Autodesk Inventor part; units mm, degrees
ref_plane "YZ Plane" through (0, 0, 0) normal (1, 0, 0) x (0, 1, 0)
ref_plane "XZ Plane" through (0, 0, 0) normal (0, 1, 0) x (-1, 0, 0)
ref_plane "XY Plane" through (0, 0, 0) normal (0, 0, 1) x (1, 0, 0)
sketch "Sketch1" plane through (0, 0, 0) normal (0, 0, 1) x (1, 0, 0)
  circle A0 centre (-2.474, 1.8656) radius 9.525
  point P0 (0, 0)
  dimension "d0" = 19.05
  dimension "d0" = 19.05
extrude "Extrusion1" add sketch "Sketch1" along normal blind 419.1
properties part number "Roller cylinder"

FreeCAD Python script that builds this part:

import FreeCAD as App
import Part
import Sketcher
from FreeCAD import Vector
Q = App.Units.Quantity

doc = App.newDocument("Part")
body = doc.addObject("PartDesign::Body", "Body")

sketch1 = doc.addObject("Sketcher::SketchObject", "Sketch")
body.addObject(sketch1)
sketch1.AttachmentSupport = (doc.XY_Plane, [""])
sketch1.MapMode = "FlatFace"
sketch1.addGeometry(Part.Circle(Vector(-2, 2, 0), Vector(0, 0, 1), 10), False)
sketch1.addConstraint([
    Sketcher.Constraint("Diameter", 0, Q("0.75 in")),
    Sketcher.Constraint("DistanceX", 0, 3, -1, 1, Q("0.0974 in")),
    Sketcher.Constraint("DistanceY", -1, 1, 0, 3, Q("1.8656 mm")),
])
pad1 = doc.addObject("PartDesign::Pad", "Pad")
body.addObject(pad1)
pad1.Profile = sketch1
pad1.Length = Q("16.5 in")

doc.recompute()
